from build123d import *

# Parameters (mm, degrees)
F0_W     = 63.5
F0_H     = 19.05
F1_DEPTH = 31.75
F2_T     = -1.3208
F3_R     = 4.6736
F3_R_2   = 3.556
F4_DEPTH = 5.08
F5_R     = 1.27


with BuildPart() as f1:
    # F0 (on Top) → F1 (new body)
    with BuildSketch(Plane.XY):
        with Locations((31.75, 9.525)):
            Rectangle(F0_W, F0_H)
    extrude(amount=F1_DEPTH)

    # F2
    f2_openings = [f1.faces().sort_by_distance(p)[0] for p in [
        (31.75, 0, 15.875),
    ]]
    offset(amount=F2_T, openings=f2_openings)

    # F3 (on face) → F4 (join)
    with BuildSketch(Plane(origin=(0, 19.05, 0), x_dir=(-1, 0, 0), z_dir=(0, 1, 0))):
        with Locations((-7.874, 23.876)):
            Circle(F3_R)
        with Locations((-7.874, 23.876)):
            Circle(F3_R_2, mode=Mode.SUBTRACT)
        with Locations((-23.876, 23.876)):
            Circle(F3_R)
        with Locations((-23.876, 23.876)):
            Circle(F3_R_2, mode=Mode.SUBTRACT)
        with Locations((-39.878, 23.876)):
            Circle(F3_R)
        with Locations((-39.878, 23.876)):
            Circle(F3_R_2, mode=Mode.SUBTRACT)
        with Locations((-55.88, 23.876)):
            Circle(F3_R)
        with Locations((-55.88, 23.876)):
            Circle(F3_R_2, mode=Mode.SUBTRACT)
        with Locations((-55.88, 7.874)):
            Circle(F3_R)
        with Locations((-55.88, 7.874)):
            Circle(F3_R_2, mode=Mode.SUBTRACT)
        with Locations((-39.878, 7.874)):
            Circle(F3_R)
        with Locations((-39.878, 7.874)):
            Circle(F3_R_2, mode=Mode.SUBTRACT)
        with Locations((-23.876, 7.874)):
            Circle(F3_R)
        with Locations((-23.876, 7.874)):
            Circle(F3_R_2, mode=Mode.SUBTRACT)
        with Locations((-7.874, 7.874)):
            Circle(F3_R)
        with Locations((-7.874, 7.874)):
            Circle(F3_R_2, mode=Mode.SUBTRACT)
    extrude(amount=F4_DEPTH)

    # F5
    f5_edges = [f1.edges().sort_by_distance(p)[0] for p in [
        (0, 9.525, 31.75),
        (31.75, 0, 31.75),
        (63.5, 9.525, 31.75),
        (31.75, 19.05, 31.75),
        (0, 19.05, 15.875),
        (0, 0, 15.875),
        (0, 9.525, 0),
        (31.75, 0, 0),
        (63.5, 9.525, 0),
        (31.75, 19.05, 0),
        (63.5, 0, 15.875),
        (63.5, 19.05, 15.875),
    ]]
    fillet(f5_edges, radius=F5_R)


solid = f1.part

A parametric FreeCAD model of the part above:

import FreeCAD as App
import Part
import Sketcher

V = App.Vector
Q = App.Units.Quantity


def edges_at(feature, points):
    """Names of the edges that pass closest to the given points."""
    edges = feature.Shape.Edges
    near = lambda p: min(range(len(edges)), key=lambda i: edges[i].distToShape(Part.Vertex(*p))[0])
    return sorted({f"Edge{near(p) + 1}" for p in points})


def faces_at(feature, points):
    """Names of the faces that lie closest to the given points."""
    faces = feature.Shape.Faces
    near = lambda p: min(range(len(faces)), key=lambda i: faces[i].distToShape(Part.Vertex(*p))[0])
    return sorted({f"Face{near(p) + 1}" for p in points})

doc = App.newDocument("Part")
params = doc.addObject("Spreadsheet::Sheet", "Params")
for row, (alias, value) in enumerate([
    ("sketch1_width", "2.5 in"),
    ("sketch1_height", "0.75 in"),
    ("pad1_length", "1.25 in"),
    ("thickness_wall", "0.052 in"),
    ("sketch2_diameter", "0.28 in"),
    ("sketch2_diameter2", "0.368 in"),
    ("pad2_length", "0.2 in"),
    ("fillet_radius", "0.05 in"),
], start=1):
    params.set(f"A{row}", alias)
    params.set(f"B{row}", "=" + value)
    params.setAlias(f"B{row}", alias)

body = doc.addObject("PartDesign::Body", "Body")

sketch1 = body.newObject("Sketcher::SketchObject", "Sketch")
sketch1.AttachmentSupport = (doc.getObject("XY_Plane"), [""])
sketch1.MapMode = "FlatFace"
sketch1.addGeometry(Part.LineSegment(V(0, 19, 0), V(0, 0, 0)), False)
sketch1.addGeometry(Part.LineSegment(V(0, 0, 0), V(64, 0, 0)), False)
sketch1.addGeometry(Part.LineSegment(V(64, 0, 0), V(64, 19, 0)), False)
sketch1.addGeometry(Part.LineSegment(V(64, 19, 0), V(0, 19, 0)), False)
sketch1.addConstraint(Sketcher.Constraint("Coincident", 0, 2, 1, 1))
sketch1.addConstraint(Sketcher.Constraint("Coincident", 1, 2, 2, 1))
sketch1.addConstraint(Sketcher.Constraint("Coincident", 2, 2, 3, 1))
sketch1.addConstraint(Sketcher.Constraint("Coincident", 3, 2, 0, 1))
sketch1.addConstraint(Sketcher.Constraint("Vertical", 0))
sketch1.addConstraint(Sketcher.Constraint("Horizontal", 1))
sketch1.addConstraint(Sketcher.Constraint("Vertical", 2))
sketch1.addConstraint(Sketcher.Constraint("Horizontal", 3))
sketch1.addConstraint(Sketcher.Constraint("Coincident", 0, 2, -1, 1))
sketch1.addConstraint(Sketcher.Constraint("DistanceX", 1, 1, 1, 2, Q("2.5 in")))
sketch1.addConstraint(Sketcher.Constraint("DistanceY", 0, 2, 0, 1, Q("0.75 in")))
sketch1.setExpression("Constraints[9]", "Params.sketch1_width")
sketch1.setExpression("Constraints[10]", "Params.sketch1_height")
pad1 = body.newObject("PartDesign::Pad", "Pad")
pad1.Profile = sketch1
pad1.setExpression("Length", "Params.pad1_length")
doc.recompute()

thickness = body.newObject("PartDesign::Thickness", "Thickness")
thickness.Base = (pad1, faces_at(pad1, [(31.75, 0, 15.875)]))
thickness.setExpression("Value", "Params.thickness_wall")
thickness.Reversed = True
thickness.Join = "Arc"

sketch2 = body.newObject("Sketcher::SketchObject", "Sketch001")
sketch2.AttachmentSupport = (doc.getObject("XZ_Plane"), [""])
sketch2.MapMode = "FlatFace"
sketch2.AttachmentOffset = App.Placement(V(0, 0, -0.75 * 25.4), App.Rotation())
sketch2.addGeometry(Part.Circle(V(7.9, 23.9, 0), V(0, 0, 1), 4.7), False)
sketch2.addGeometry(Part.Circle(V(7.9, 23.9, 0), V(0, 0, 1), 3.6), False)
sketch2.addGeometry(Part.Circle(V(23.9, 23.9, 0), V(0, 0, 1), 4.7), False)
sketch2.addGeometry(Part.Circle(V(23.9, 23.9, 0), V(0, 0, 1), 3.6), False)
sketch2.addGeometry(Part.Circle(V(39.9, 23.9, 0), V(0, 0, 1), 4.7), False)
sketch2.addGeometry(Part.Circle(V(39.9, 23.9, 0), V(0, 0, 1), 3.6), False)
sketch2.addGeometry(Part.Circle(V(55.9, 23.9, 0), V(0, 0, 1), 4.7), False)
sketch2.addGeometry(Part.Circle(V(55.9, 23.9, 0), V(0, 0, 1), 3.6), False)
sketch2.addGeometry(Part.Circle(V(55.9, 7.9, 0), V(0, 0, 1), 4.7), False)
sketch2.addGeometry(Part.Circle(V(55.9, 7.9, 0), V(0, 0, 1), 3.6), False)
sketch2.addGeometry(Part.Circle(V(39.9, 7.9, 0), V(0, 0, 1), 4.7), False)
sketch2.addGeometry(Part.Circle(V(39.9, 7.9, 0), V(0, 0, 1), 3.6), False)
sketch2.addGeometry(Part.Circle(V(23.9, 7.9, 0), V(0, 0, 1), 4.7), False)
sketch2.addGeometry(Part.Circle(V(23.9, 7.9, 0), V(0, 0, 1), 3.6), False)
sketch2.addGeometry(Part.Circle(V(7.9, 7.9, 0), V(0, 0, 1), 4.7), False)
sketch2.addGeometry(Part.Circle(V(7.9, 7.9, 0), V(0, 0, 1), 3.6), False)
sketch2.addConstraint(Sketcher.Constraint("Coincident", 1, 3, 0, 3))
sketch2.addConstraint(Sketcher.Constraint("Coincident", 3, 3, 2, 3))
sketch2.addConstraint(Sketcher.Constraint("Coincident", 5, 3, 4, 3))
sketch2.addConstraint(Sketcher.Constraint("Coincident", 7, 3, 6, 3))
sketch2.addConstraint(Sketcher.Constraint("Coincident", 9, 3, 8, 3))
sketch2.addConstraint(Sketcher.Constraint("Coincident", 11, 3, 10, 3))
sketch2.addConstraint(Sketcher.Constraint("Coincident", 13, 3, 12, 3))
sketch2.addConstraint(Sketcher.Constraint("Coincident", 15, 3, 14, 3))
sketch2.addConstraint(Sketcher.Constraint("Equal", 0, 2))
sketch2.addConstraint(Sketcher.Constraint("Equal", 1, 3))
sketch2.addConstraint(Sketcher.Constraint("Equal", 2, 4))
sketch2.addConstraint(Sketcher.Constraint("Equal", 3, 5))
sketch2.addConstraint(Sketcher.Constraint("Equal", 4, 6))
sketch2.addConstraint(Sketcher.Constraint("Equal", 5, 7))
sketch2.addConstraint(Sketcher.Constraint("Equal", 6, 8))
sketch2.addConstraint(Sketcher.Constraint("Equal", 7, 9))
sketch2.addConstraint(Sketcher.Constraint("Equal", 8, 10))
sketch2.addConstraint(Sketcher.Constraint("Equal", 9, 11))
sketch2.addConstraint(Sketcher.Constraint("Equal", 10, 12))
sketch2.addConstraint(Sketcher.Constraint("Equal", 11, 13))
sketch2.addConstraint(Sketcher.Constraint("Equal", 12, 14))
sketch2.addConstraint(Sketcher.Constraint("Equal", 13, 15))
sketch2.addConstraint(Sketcher.Constraint("Horizontal", 1, 3, 2, 3))
sketch2.addConstraint(Sketcher.Constraint("Horizontal", 3, 3, 4, 3))
sketch2.addConstraint(Sketcher.Constraint("Horizontal", 5, 3, 6, 3))
sketch2.addConstraint(Sketcher.Constraint("Horizontal", 9, 3, 10, 3))
sketch2.addConstraint(Sketcher.Constraint("Horizontal", 11, 3, 12, 3))
sketch2.addConstraint(Sketcher.Constraint("Horizontal", 13, 3, 14, 3))
sketch2.addConstraint(Sketcher.Constraint("Vertical", 7, 3, 8, 3))
sketch2.addConstraint(Sketcher.Constraint("Vertical", 5, 3, 10, 3))
sketch2.addConstraint(Sketcher.Constraint("Vertical", 3, 3, 12, 3))
sketch2.addConstraint(Sketcher.Constraint("Vertical", 1, 3, 14, 3))
sketch2.addConstraint(Sketcher.Constraint("Diameter", 1, Q("0.28 in")))
sketch2.addConstraint(Sketcher.Constraint("Diameter", 0, Q("0.368 in")))
sketch2.addConstraint(Sketcher.Constraint("DistanceX", -1, 1, 6, 3, Q("2.2 in")))
sketch2.addConstraint(Sketcher.Constraint("DistanceX", -1, 1, 0, 3, Q("0.31 in")))
sketch2.addConstraint(Sketcher.Constraint("DistanceY", -1, 1, 0, 3, Q("0.94 in")))
sketch2.addConstraint(Sketcher.Constraint("DistanceX", -1, 1, 2, 3, Q("0.94 in")))
sketch2.addConstraint(Sketcher.Constraint("DistanceX", -1, 1, 4, 3, Q("1.57 in")))
sketch2.addConstraint(Sketcher.Constraint("DistanceY", -1, 1, 8, 3, Q("0.31 in")))
sketch2.setExpression("Constraints[32]", "Params.sketch2_diameter")
sketch2.setExpression("Constraints[33]", "Params.sketch2_diameter2")
pad2 = body.newObject("PartDesign::Pad", "Pad001")
pad2.Profile = sketch2
pad2.setExpression("Length", "Params.pad2_length")
pad2.Reversed = True
doc.recompute()

fillet = body.newObject("PartDesign::Fillet", "Fillet")
fillet.Base = (pad2, edges_at(pad2, [
    (0, 9.525, 31.75),
    (31.75, 0, 31.75),
    (63.5, 9.525, 31.75),
    (31.75, 19.05, 31.75),
    (0, 19.05, 15.875),
    (0, 0, 15.875),
    (0, 9.525, 0),
    (31.75, 0, 0),
    (63.5, 9.525, 0),
    (31.75, 19.05, 0),
    (63.5, 0, 15.875),
    (63.5, 19.05, 15.875),
]))
fillet.setExpression("Radius", "Params.fillet_radius")

doc.recompute()
